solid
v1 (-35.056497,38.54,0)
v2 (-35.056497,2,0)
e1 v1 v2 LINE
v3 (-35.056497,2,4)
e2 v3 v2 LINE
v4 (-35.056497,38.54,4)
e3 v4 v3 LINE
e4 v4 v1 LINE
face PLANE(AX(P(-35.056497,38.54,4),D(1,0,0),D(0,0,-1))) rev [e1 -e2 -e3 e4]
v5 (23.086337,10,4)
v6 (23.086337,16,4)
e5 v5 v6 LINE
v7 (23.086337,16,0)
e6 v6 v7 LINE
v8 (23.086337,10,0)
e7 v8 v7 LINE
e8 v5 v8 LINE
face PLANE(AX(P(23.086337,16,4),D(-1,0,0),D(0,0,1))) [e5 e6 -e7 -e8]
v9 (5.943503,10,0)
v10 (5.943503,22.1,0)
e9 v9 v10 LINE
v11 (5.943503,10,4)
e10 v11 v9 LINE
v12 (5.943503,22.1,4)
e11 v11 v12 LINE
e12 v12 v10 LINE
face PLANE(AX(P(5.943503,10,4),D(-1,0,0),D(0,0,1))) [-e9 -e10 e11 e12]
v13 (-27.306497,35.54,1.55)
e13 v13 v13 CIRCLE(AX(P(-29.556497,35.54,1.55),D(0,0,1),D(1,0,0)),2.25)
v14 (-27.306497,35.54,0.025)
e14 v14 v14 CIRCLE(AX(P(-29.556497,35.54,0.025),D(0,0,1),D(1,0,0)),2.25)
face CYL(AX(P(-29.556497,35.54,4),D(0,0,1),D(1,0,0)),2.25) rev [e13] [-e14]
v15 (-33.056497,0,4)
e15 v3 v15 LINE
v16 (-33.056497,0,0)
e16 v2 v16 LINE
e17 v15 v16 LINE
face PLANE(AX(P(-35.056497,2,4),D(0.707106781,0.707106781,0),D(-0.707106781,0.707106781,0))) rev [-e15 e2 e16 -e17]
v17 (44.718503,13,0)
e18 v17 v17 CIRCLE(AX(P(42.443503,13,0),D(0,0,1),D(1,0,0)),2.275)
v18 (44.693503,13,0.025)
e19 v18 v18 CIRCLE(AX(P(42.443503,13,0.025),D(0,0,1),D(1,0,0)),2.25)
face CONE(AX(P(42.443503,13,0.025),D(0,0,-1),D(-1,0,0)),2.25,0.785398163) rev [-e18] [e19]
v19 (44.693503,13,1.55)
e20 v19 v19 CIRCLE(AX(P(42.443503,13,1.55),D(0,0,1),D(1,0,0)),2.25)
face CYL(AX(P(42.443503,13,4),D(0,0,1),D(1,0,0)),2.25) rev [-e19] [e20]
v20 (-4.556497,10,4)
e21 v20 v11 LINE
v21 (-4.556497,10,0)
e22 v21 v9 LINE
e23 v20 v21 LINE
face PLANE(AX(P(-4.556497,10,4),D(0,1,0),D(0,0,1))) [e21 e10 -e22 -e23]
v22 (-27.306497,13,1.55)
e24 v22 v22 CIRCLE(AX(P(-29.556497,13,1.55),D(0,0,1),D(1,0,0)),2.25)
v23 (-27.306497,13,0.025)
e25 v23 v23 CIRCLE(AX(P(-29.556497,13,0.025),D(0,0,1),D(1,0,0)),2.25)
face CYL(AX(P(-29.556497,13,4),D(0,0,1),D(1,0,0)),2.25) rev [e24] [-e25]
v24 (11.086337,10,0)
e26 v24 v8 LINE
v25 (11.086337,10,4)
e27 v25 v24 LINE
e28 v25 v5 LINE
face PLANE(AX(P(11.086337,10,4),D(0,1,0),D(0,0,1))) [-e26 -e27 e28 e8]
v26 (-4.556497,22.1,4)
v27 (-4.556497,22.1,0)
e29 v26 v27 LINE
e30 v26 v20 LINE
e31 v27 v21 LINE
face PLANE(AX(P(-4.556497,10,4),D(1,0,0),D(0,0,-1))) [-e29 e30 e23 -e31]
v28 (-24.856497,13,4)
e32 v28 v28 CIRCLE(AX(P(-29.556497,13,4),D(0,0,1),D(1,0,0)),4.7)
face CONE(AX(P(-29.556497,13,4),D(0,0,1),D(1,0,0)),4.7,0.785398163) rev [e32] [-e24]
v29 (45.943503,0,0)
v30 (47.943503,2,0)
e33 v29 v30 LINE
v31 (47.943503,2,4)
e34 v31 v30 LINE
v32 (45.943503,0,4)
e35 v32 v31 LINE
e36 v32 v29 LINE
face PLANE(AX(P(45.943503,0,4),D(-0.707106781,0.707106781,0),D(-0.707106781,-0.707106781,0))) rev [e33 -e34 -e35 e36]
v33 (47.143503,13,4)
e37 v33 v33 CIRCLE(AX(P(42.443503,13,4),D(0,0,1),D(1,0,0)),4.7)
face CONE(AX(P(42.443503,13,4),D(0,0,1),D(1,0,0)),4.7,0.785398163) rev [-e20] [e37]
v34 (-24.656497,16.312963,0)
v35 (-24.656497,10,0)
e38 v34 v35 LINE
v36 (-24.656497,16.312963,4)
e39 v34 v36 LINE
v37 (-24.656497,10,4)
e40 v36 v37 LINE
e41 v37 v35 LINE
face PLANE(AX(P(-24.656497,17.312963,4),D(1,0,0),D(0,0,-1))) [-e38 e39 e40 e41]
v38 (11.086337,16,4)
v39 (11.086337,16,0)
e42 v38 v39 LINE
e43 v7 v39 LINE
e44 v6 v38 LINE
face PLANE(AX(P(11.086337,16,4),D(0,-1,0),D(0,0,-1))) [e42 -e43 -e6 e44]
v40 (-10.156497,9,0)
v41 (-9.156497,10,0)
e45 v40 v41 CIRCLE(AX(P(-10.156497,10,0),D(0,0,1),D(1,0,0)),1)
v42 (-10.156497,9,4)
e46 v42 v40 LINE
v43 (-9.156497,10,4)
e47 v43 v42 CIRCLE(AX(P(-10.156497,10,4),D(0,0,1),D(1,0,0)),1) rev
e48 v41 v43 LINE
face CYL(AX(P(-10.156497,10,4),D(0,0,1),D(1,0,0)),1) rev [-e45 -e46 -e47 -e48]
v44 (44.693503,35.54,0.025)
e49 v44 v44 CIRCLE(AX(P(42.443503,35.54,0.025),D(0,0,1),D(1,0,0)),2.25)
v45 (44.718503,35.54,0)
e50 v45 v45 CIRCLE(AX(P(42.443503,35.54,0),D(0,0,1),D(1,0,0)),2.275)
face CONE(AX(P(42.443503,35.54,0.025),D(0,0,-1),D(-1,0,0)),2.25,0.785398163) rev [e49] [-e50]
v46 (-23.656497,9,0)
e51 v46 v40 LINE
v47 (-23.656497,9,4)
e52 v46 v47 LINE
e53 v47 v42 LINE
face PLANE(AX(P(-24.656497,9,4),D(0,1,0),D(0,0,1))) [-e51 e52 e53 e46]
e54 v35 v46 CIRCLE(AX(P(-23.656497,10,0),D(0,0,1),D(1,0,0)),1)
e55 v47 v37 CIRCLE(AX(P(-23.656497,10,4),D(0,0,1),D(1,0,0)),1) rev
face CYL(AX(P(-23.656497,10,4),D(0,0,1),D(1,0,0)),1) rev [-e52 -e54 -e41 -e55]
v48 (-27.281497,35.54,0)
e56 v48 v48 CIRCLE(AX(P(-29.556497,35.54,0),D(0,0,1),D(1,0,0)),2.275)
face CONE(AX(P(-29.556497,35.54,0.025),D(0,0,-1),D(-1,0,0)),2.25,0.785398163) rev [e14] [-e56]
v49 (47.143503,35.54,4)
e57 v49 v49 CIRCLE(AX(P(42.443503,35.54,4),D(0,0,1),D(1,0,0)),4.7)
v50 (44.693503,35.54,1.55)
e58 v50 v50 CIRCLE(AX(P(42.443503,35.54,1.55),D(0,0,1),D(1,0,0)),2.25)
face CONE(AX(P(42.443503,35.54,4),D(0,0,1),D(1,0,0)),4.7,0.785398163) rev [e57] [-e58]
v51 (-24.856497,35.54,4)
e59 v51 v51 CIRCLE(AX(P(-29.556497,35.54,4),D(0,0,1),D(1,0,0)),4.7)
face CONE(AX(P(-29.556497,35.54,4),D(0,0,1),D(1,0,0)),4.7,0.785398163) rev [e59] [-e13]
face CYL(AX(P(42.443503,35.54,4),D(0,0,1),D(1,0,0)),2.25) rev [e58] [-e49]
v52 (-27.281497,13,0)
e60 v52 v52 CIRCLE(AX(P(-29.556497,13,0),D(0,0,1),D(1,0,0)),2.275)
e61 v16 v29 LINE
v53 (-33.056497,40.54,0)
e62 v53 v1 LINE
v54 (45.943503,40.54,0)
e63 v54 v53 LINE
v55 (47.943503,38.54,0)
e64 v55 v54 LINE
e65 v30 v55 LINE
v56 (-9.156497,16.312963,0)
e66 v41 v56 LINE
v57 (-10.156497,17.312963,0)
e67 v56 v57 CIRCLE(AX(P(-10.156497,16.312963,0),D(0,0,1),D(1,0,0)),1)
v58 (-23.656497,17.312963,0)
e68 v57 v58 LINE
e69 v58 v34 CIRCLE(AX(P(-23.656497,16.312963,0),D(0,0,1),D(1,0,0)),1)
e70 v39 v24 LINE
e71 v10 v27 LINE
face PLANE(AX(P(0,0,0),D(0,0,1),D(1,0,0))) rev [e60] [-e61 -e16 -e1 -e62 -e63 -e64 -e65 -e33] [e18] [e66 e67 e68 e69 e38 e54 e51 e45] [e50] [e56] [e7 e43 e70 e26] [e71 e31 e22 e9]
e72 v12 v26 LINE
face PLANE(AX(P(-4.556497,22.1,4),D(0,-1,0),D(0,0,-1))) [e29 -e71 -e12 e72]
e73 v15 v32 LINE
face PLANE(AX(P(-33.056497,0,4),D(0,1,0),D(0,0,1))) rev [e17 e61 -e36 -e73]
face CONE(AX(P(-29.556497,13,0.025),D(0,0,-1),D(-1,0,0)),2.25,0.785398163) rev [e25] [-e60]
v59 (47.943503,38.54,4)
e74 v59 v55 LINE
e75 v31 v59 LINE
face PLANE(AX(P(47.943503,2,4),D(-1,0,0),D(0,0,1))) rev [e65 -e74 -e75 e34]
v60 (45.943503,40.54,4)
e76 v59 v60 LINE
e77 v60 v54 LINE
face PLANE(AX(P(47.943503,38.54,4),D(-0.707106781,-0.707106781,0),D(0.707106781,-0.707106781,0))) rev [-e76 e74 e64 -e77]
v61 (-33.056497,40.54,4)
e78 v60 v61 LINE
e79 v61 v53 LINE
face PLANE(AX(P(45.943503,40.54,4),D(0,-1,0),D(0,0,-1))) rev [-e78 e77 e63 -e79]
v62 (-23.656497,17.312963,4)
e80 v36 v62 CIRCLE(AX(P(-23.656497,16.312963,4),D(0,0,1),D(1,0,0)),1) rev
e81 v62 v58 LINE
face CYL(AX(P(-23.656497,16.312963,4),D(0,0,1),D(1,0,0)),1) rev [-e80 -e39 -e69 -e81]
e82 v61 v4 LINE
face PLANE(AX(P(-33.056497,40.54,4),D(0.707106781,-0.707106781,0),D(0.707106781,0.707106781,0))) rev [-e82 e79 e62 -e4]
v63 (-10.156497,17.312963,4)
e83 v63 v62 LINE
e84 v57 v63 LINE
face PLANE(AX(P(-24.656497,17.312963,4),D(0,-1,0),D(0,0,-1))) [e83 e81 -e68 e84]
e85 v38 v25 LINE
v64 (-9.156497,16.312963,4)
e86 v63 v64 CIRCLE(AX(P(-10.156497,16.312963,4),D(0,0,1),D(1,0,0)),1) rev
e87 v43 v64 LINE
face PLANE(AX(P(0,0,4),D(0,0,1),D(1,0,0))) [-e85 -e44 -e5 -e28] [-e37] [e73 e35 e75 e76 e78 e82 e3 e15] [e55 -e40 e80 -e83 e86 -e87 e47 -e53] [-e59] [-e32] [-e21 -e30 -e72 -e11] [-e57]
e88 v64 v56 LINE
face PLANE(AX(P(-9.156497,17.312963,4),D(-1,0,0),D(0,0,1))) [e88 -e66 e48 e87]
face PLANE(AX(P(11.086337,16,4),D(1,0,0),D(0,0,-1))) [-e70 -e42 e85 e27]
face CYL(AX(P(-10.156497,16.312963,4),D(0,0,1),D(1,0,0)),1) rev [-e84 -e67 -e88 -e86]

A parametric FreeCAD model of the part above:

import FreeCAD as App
import Part
import Sketcher
from FreeCAD import Vector
Q = App.Units.Quantity


def edges_at(feature, points):
    """Names of the edges that pass closest to the given points."""
    edges = feature.Shape.Edges
    near = lambda p: min(range(len(edges)), key=lambda i: edges[i].distToShape(Part.Vertex(*p))[0])
    return sorted({f"Edge{near(p) + 1}" for p in points})

doc = App.newDocument("Part")
params = doc.addObject("Spreadsheet::Sheet", "Params")
for row, (alias, value) in enumerate([
    ("sketch1_width", "79 mm"),
    ("sketch1_width2", "12 mm"),
    ("sketch1_height", "6 mm"),
    ("sketch1_width3", "15.5 mm"),
    ("sketch1_width4", "10.5 mm"),
    ("pad1_length", "4 mm"),
    ("sketch2_height", "4 mm"),
    ("sketch2_width", "4.7 mm"),
    ("groove_angle", "360 deg"),
    ("linearpattern_pitch", "22.54 mm"),
    ("linearpattern2_pitch", "75.445686 mm"),
    ("linearpattern3_pitch", "72 mm"),
    ("fillet_radius", "1 mm"),
], start=1):
    params.set(f"A{row}", alias)
    params.set(f"B{row}", "=" + value)
    params.setAlias(f"B{row}", alias)

body = doc.addObject("PartDesign::Body", "Body")

sketch1 = doc.addObject("Sketcher::SketchObject", "Sketch")
body.addObject(sketch1)
sketch1.AttachmentSupport = (doc.XY_Plane, [""])
sketch1.MapMode = "FlatFace"
sketch1.addGeometry(Part.LineSegment(Vector(-35.1, 38.5, 0), Vector(-35.1, 2, 0)), False)
sketch1.addGeometry(Part.LineSegment(Vector(-35.1, 2, 0), Vector(-33.1, 0, 0)), False)
sketch1.addGeometry(Part.LineSegment(Vector(-33.1, 0, 0), Vector(45.9, 0, 0)), False)
sketch1.addGeometry(Part.LineSegment(Vector(45.9, 0, 0), Vector(47.9, 2, 0)), False)
sketch1.addGeometry(Part.LineSegment(Vector(47.9, 2, 0), Vector(47.9, 38.5, 0)), False)
sketch1.addGeometry(Part.LineSegment(Vector(47.9, 38.5, 0), Vector(45.9, 40.5, 0)), False)
sketch1.addGeometry(Part.LineSegment(Vector(45.9, 40.5, 0), Vector(-33.1, 40.5, 0)), False)
sketch1.addGeometry(Part.LineSegment(Vector(-33.1, 40.5, 0), Vector(-35.1, 38.5, 0)), False)
sketch1.addGeometry(Part.LineSegment(Vector(-9.2, 9, 0), Vector(-24.7, 9, 0)), False)
sketch1.addGeometry(Part.LineSegment(Vector(-24.7, 9, 0), Vector(-24.7, 17.3, 0)), False)
sketch1.addGeometry(Part.LineSegment(Vector(-24.7, 17.3, 0), Vector(-9.2, 17.3, 0)), False)
sketch1.addGeometry(Part.LineSegment(Vector(-9.2, 17.3, 0), Vector(-9.2, 9, 0)), False)
sketch1.addGeometry(Part.LineSegment(Vector(23.1, 10, 0), Vector(11.1, 10, 0)), False)
sketch1.addGeometry(Part.LineSegment(Vector(11.1, 10, 0), Vector(11.1, 16, 0)), False)
sketch1.addGeometry(Part.LineSegment(Vector(11.1, 16, 0), Vector(23.1, 16, 0)), False)
sketch1.addGeometry(Part.LineSegment(Vector(23.1, 16, 0), Vector(23.1, 10, 0)), False)
sketch1.addGeometry(Part.LineSegment(Vector(5.9, 10, 0), Vector(-4.6, 10, 0)), False)
sketch1.addGeometry(Part.LineSegment(Vector(-4.6, 10, 0), Vector(-4.6, 22.1, 0)), False)
sketch1.addGeometry(Part.LineSegment(Vector(-4.6, 22.1, 0), Vector(5.9, 22.1, 0)), False)
sketch1.addGeometry(Part.LineSegment(Vector(5.9, 22.1, 0), Vector(5.9, 10, 0)), False)
sketch1.addConstraint(Sketcher.Constraint("Coincident", 0, 2, 1, 1))
sketch1.addConstraint(Sketcher.Constraint("Coincident", 1, 2, 2, 1))
sketch1.addConstraint(Sketcher.Constraint("Coincident", 2, 2, 3, 1))
sketch1.addConstraint(Sketcher.Constraint("Coincident", 3, 2, 4, 1))
sketch1.addConstraint(Sketcher.Constraint("Coincident", 4, 2, 5, 1))
sketch1.addConstraint(Sketcher.Constraint("Coincident", 5, 2, 6, 1))
sketch1.addConstraint(Sketcher.Constraint("Coincident", 6, 2, 7, 1))
sketch1.addConstraint(Sketcher.Constraint("Coincident", 7, 2, 0, 1))
sketch1.addConstraint(Sketcher.Constraint("Coincident", 8, 2, 9, 1))
sketch1.addConstraint(Sketcher.Constraint("Coincident", 9, 2, 10, 1))
sketch1.addConstraint(Sketcher.Constraint("Coincident", 10, 2, 11, 1))
sketch1.addConstraint(Sketcher.Constraint("Coincident", 11, 2, 8, 1))
sketch1.addConstraint(Sketcher.Constraint("Coincident", 12, 2, 13, 1))
sketch1.addConstraint(Sketcher.Constraint("Coincident", 13, 2, 14, 1))
sketch1.addConstraint(Sketcher.Constraint("Coincident", 14, 2, 15, 1))
sketch1.addConstraint(Sketcher.Constraint("Coincident", 15, 2, 12, 1))
sketch1.addConstraint(Sketcher.Constraint("Coincident", 16, 2, 17, 1))
sketch1.addConstraint(Sketcher.Constraint("Coincident", 17, 2, 18, 1))
sketch1.addConstraint(Sketcher.Constraint("Coincident", 18, 2, 19, 1))
sketch1.addConstraint(Sketcher.Constraint("Coincident", 19, 2, 16, 1))
sketch1.addConstraint(Sketcher.Constraint("Vertical", 0))
sketch1.addConstraint(Sketcher.Constraint("Horizontal", 2))
sketch1.addConstraint(Sketcher.Constraint("Vertical", 4))
sketch1.addConstraint(Sketcher.Constraint("Horizontal", 6))
sketch1.addConstraint(Sketcher.Constraint("Horizontal", 8))
sketch1.addConstraint(Sketcher.Constraint("Vertical", 9))
sketch1.addConstraint(Sketcher.Constraint("Horizontal", 10))
sketch1.addConstraint(Sketcher.Constraint("Vertical", 11))
sketch1.addConstraint(Sketcher.Constraint("Horizontal", 12))
sketch1.addConstraint(Sketcher.Constraint("Vertical", 13))
sketch1.addConstraint(Sketcher.Constraint("Horizontal", 14))
sketch1.addConstraint(Sketcher.Constraint("Vertical", 15))
sketch1.addConstraint(Sketcher.Constraint("Horizontal", 16))
sketch1.addConstraint(Sketcher.Constraint("Vertical", 17))
sketch1.addConstraint(Sketcher.Constraint("Horizontal", 18))
sketch1.addConstraint(Sketcher.Constraint("Vertical", 19))
sketch1.addConstraint(Sketcher.Constraint("PointOnObject", 1, 2, -1))
sketch1.addConstraint(Sketcher.Constraint("Perpendicular", 1, 3))
sketch1.addConstraint(Sketcher.Constraint("Perpendicular", 3, 5))
sketch1.addConstraint(Sketcher.Constraint("Perpendicular", 5, 7))
sketch1.addConstraint(Sketcher.Constraint("Horizontal", 0, 2, 3, 2))
sketch1.addConstraint(Sketcher.Constraint("Horizontal", 4, 2, 7, 2))
sketch1.addConstraint(Sketcher.Constraint("Horizontal", 15, 2, 16, 2))
sketch1.addConstraint(Sketcher.Constraint("Vertical", 2, 2, 5, 2))
sketch1.addConstraint(Sketcher.Constraint("Vertical", 1, 2, 6, 2))
sketch1.addConstraint(Sketcher.Constraint("DistanceX", 2, 1, 2, 2, 79.0))
sketch1.addConstraint(Sketcher.Constraint("DistanceX", 12, 2, 12, 1, 12.0))
sketch1.addConstraint(Sketcher.Constraint("DistanceY", 13, 1, 13, 2, 6.0))
sketch1.addConstraint(Sketcher.Constraint("DistanceX", 8, 2, 8, 1, 15.5))
sketch1.addConstraint(Sketcher.Constraint("DistanceX", 16, 2, 16, 1, 10.5))
sketch1.addConstraint(Sketcher.Constraint("DistanceY", 17, 1, 17, 2, 12.1))
sketch1.addConstraint(Sketcher.Constraint("DistanceY", -1, 1, 0, 2, 2.0))
sketch1.addConstraint(Sketcher.Constraint("DistanceY", -1, 1, 8, 2, 9.0))
sketch1.addConstraint(Sketcher.Constraint("DistanceY", -1, 1, 12, 2, 10.0))
sketch1.addConstraint(Sketcher.Constraint("DistanceY", 0, 2, 0, 1, 36.54))
sketch1.addConstraint(Sketcher.Constraint("DistanceX", 1, 2, 8, 2, 8.4))
sketch1.addConstraint(Sketcher.Constraint("DistanceX", 11, 2, 16, 2, 4.6))
sketch1.addConstraint(Sketcher.Constraint("DistanceY", 9, 1, 9, 2, 8.312963))
sketch1.addConstraint(Sketcher.Constraint("DistanceX", 0, 2, -1, 1, 35.056497))
sketch1.addConstraint(Sketcher.Constraint("DistanceX", -1, 1, 12, 2, 11.086337))
sketch1.setExpression("Constraints[45]", "Params.sketch1_width")
sketch1.setExpression("Constraints[46]", "Params.sketch1_width2")
sketch1.setExpression("Constraints[47]", "Params.sketch1_height")
sketch1.setExpression("Constraints[48]", "Params.sketch1_width3")
sketch1.setExpression("Constraints[49]", "Params.sketch1_width4")
pad1 = doc.addObject("PartDesign::Pad", "Pad")
body.addObject(pad1)
pad1.Profile = sketch1
pad1.setExpression("Length", "Params.pad1_length")

sketch2 = doc.addObject("Sketcher::SketchObject", "Sketch001")
body.addObject(sketch2)
sketch2.AttachmentSupport = (doc.YZ_Plane, [""])
sketch2.MapMode = "FlatFace"
sketch2.AttachmentOffset = App.Placement(Vector(0, 0, -29.556497), App.Rotation())
sketch2.addGeometry(Part.LineSegment(Vector(35.54, 0, 0), Vector(35.54, 4, 0)), False)
sketch2.addGeometry(Part.LineSegment(Vector(35.54, 4, 0), Vector(30.84, 4, 0)), False)
sketch2.addGeometry(Part.LineSegment(Vector(30.84, 4, 0), Vector(33.29, 1.55, 0)), False)
sketch2.addGeometry(Part.LineSegment(Vector(33.29, 1.55, 0), Vector(33.29, 0.025, 0)), False)
sketch2.addGeometry(Part.LineSegment(Vector(33.29, 0.025, 0), Vector(33.265, 0, 0)), False)
sketch2.addGeometry(Part.LineSegment(Vector(33.265, 0, 0), Vector(35.54, 0, 0)), False)
sketch2.addGeometry(Part.LineSegment(Vector(35.54, 4, 0), Vector(35.54, 0, 0)), True)
sketch2.addConstraint(Sketcher.Constraint("Coincident", 0, 2, 1, 1))
sketch2.addConstraint(Sketcher.Constraint("Coincident", 1, 2, 2, 1))
sketch2.addConstraint(Sketcher.Constraint("Coincident", 2, 2, 3, 1))
sketch2.addConstraint(Sketcher.Constraint("Coincident", 3, 2, 4, 1))
sketch2.addConstraint(Sketcher.Constraint("Coincident", 4, 2, 5, 1))
sketch2.addConstraint(Sketcher.Constraint("Coincident", 5, 2, 0, 1))
sketch2.addConstraint(Sketcher.Constraint("Vertical", 0))
sketch2.addConstraint(Sketcher.Constraint("Horizontal", 1))
sketch2.addConstraint(Sketcher.Constraint("Vertical", 3))
sketch2.addConstraint(Sketcher.Constraint("Horizontal", 5))
sketch2.addConstraint(Sketcher.Constraint("Vertical", 6))
sketch2.addConstraint(Sketcher.Constraint("Coincident", 6, 1, 0, 2))
sketch2.addConstraint(Sketcher.Constraint("PointOnObject", 4, 2, -1))
sketch2.addConstraint(Sketcher.Constraint("PointOnObject", 6, 2, -1))
sketch2.addConstraint(Sketcher.Constraint("Perpendicular", 2, 4))
sketch2.addConstraint(Sketcher.Constraint("DistanceY", 0, 1, 0, 2, 4.0))
sketch2.addConstraint(Sketcher.Constraint("Angle", 2, Q("-45 deg")))
sketch2.addConstraint(Sketcher.Constraint("DistanceX", 1, 2, 1, 1, 4.7))
sketch2.addConstraint(Sketcher.Constraint("DistanceX", 5, 1, 5, 2, 2.275))
sketch2.addConstraint(Sketcher.Constraint("DistanceY", 3, 2, 3, 1, 1.525))
sketch2.addConstraint(Sketcher.Constraint("DistanceX", -1, 1, 0, 2, 35.54))
sketch2.setExpression("Constraints[15]", "Params.sketch2_height")
sketch2.setExpression("Constraints[17]", "Params.sketch2_width")
groove = doc.addObject("PartDesign::Groove", "Groove")
body.addObject(groove)
groove.Profile = sketch2
groove.ReferenceAxis = (sketch2, ["Axis0"])
groove.setExpression("Angle", "Params.groove_angle")
doc.recompute()

linearpattern = doc.addObject("PartDesign::LinearPattern", "LinearPattern")
body.addObject(linearpattern)
linearpattern.Originals = [groove]
linearpattern.Direction = (doc.Y_Axis, [""])
linearpattern.Mode = "offset"
linearpattern.setExpression("Offset", "Params.linearpattern_pitch")
linearpattern.Occurrences = 2
linearpattern.Reversed = True
body.Tip = linearpattern
doc.recompute()

datumline = doc.addObject("PartDesign::Line", "DatumLine")
body.addObject(datumline)
datumline.Placement = App.Placement(Vector(0, 0, 0), App.Rotation(Vector(0, 0, 1), Vector(0.954328914, -0.298757968, 0)))
linearpattern2 = doc.addObject("PartDesign::LinearPattern", "LinearPattern001")
body.addObject(linearpattern2)
linearpattern2.Originals = [groove]
linearpattern2.Direction = (datumline, [""])
linearpattern2.Mode = "offset"
linearpattern2.setExpression("Offset", "Params.linearpattern2_pitch")
linearpattern2.Occurrences = 2
body.Tip = linearpattern2
doc.recompute()

linearpattern3 = doc.addObject("PartDesign::LinearPattern", "LinearPattern002")
body.addObject(linearpattern3)
linearpattern3.Originals = [groove]
linearpattern3.Direction = (doc.X_Axis, [""])
linearpattern3.Mode = "offset"
linearpattern3.setExpression("Offset", "Params.linearpattern3_pitch")
linearpattern3.Occurrences = 2
body.Tip = linearpattern3
doc.recompute()

fillet = doc.addObject("PartDesign::Fillet", "Fillet")
body.addObject(fillet)
fillet.Base = (linearpattern3, edges_at(linearpattern3, [
    (-24.656, 17.313, 2),
    (-24.656, 9, 2),
    (-9.156, 9, 2),
    (-9.156, 17.313, 2),
]))
fillet.setExpression("Radius", "Params.fillet_radius")

doc.recompute()
